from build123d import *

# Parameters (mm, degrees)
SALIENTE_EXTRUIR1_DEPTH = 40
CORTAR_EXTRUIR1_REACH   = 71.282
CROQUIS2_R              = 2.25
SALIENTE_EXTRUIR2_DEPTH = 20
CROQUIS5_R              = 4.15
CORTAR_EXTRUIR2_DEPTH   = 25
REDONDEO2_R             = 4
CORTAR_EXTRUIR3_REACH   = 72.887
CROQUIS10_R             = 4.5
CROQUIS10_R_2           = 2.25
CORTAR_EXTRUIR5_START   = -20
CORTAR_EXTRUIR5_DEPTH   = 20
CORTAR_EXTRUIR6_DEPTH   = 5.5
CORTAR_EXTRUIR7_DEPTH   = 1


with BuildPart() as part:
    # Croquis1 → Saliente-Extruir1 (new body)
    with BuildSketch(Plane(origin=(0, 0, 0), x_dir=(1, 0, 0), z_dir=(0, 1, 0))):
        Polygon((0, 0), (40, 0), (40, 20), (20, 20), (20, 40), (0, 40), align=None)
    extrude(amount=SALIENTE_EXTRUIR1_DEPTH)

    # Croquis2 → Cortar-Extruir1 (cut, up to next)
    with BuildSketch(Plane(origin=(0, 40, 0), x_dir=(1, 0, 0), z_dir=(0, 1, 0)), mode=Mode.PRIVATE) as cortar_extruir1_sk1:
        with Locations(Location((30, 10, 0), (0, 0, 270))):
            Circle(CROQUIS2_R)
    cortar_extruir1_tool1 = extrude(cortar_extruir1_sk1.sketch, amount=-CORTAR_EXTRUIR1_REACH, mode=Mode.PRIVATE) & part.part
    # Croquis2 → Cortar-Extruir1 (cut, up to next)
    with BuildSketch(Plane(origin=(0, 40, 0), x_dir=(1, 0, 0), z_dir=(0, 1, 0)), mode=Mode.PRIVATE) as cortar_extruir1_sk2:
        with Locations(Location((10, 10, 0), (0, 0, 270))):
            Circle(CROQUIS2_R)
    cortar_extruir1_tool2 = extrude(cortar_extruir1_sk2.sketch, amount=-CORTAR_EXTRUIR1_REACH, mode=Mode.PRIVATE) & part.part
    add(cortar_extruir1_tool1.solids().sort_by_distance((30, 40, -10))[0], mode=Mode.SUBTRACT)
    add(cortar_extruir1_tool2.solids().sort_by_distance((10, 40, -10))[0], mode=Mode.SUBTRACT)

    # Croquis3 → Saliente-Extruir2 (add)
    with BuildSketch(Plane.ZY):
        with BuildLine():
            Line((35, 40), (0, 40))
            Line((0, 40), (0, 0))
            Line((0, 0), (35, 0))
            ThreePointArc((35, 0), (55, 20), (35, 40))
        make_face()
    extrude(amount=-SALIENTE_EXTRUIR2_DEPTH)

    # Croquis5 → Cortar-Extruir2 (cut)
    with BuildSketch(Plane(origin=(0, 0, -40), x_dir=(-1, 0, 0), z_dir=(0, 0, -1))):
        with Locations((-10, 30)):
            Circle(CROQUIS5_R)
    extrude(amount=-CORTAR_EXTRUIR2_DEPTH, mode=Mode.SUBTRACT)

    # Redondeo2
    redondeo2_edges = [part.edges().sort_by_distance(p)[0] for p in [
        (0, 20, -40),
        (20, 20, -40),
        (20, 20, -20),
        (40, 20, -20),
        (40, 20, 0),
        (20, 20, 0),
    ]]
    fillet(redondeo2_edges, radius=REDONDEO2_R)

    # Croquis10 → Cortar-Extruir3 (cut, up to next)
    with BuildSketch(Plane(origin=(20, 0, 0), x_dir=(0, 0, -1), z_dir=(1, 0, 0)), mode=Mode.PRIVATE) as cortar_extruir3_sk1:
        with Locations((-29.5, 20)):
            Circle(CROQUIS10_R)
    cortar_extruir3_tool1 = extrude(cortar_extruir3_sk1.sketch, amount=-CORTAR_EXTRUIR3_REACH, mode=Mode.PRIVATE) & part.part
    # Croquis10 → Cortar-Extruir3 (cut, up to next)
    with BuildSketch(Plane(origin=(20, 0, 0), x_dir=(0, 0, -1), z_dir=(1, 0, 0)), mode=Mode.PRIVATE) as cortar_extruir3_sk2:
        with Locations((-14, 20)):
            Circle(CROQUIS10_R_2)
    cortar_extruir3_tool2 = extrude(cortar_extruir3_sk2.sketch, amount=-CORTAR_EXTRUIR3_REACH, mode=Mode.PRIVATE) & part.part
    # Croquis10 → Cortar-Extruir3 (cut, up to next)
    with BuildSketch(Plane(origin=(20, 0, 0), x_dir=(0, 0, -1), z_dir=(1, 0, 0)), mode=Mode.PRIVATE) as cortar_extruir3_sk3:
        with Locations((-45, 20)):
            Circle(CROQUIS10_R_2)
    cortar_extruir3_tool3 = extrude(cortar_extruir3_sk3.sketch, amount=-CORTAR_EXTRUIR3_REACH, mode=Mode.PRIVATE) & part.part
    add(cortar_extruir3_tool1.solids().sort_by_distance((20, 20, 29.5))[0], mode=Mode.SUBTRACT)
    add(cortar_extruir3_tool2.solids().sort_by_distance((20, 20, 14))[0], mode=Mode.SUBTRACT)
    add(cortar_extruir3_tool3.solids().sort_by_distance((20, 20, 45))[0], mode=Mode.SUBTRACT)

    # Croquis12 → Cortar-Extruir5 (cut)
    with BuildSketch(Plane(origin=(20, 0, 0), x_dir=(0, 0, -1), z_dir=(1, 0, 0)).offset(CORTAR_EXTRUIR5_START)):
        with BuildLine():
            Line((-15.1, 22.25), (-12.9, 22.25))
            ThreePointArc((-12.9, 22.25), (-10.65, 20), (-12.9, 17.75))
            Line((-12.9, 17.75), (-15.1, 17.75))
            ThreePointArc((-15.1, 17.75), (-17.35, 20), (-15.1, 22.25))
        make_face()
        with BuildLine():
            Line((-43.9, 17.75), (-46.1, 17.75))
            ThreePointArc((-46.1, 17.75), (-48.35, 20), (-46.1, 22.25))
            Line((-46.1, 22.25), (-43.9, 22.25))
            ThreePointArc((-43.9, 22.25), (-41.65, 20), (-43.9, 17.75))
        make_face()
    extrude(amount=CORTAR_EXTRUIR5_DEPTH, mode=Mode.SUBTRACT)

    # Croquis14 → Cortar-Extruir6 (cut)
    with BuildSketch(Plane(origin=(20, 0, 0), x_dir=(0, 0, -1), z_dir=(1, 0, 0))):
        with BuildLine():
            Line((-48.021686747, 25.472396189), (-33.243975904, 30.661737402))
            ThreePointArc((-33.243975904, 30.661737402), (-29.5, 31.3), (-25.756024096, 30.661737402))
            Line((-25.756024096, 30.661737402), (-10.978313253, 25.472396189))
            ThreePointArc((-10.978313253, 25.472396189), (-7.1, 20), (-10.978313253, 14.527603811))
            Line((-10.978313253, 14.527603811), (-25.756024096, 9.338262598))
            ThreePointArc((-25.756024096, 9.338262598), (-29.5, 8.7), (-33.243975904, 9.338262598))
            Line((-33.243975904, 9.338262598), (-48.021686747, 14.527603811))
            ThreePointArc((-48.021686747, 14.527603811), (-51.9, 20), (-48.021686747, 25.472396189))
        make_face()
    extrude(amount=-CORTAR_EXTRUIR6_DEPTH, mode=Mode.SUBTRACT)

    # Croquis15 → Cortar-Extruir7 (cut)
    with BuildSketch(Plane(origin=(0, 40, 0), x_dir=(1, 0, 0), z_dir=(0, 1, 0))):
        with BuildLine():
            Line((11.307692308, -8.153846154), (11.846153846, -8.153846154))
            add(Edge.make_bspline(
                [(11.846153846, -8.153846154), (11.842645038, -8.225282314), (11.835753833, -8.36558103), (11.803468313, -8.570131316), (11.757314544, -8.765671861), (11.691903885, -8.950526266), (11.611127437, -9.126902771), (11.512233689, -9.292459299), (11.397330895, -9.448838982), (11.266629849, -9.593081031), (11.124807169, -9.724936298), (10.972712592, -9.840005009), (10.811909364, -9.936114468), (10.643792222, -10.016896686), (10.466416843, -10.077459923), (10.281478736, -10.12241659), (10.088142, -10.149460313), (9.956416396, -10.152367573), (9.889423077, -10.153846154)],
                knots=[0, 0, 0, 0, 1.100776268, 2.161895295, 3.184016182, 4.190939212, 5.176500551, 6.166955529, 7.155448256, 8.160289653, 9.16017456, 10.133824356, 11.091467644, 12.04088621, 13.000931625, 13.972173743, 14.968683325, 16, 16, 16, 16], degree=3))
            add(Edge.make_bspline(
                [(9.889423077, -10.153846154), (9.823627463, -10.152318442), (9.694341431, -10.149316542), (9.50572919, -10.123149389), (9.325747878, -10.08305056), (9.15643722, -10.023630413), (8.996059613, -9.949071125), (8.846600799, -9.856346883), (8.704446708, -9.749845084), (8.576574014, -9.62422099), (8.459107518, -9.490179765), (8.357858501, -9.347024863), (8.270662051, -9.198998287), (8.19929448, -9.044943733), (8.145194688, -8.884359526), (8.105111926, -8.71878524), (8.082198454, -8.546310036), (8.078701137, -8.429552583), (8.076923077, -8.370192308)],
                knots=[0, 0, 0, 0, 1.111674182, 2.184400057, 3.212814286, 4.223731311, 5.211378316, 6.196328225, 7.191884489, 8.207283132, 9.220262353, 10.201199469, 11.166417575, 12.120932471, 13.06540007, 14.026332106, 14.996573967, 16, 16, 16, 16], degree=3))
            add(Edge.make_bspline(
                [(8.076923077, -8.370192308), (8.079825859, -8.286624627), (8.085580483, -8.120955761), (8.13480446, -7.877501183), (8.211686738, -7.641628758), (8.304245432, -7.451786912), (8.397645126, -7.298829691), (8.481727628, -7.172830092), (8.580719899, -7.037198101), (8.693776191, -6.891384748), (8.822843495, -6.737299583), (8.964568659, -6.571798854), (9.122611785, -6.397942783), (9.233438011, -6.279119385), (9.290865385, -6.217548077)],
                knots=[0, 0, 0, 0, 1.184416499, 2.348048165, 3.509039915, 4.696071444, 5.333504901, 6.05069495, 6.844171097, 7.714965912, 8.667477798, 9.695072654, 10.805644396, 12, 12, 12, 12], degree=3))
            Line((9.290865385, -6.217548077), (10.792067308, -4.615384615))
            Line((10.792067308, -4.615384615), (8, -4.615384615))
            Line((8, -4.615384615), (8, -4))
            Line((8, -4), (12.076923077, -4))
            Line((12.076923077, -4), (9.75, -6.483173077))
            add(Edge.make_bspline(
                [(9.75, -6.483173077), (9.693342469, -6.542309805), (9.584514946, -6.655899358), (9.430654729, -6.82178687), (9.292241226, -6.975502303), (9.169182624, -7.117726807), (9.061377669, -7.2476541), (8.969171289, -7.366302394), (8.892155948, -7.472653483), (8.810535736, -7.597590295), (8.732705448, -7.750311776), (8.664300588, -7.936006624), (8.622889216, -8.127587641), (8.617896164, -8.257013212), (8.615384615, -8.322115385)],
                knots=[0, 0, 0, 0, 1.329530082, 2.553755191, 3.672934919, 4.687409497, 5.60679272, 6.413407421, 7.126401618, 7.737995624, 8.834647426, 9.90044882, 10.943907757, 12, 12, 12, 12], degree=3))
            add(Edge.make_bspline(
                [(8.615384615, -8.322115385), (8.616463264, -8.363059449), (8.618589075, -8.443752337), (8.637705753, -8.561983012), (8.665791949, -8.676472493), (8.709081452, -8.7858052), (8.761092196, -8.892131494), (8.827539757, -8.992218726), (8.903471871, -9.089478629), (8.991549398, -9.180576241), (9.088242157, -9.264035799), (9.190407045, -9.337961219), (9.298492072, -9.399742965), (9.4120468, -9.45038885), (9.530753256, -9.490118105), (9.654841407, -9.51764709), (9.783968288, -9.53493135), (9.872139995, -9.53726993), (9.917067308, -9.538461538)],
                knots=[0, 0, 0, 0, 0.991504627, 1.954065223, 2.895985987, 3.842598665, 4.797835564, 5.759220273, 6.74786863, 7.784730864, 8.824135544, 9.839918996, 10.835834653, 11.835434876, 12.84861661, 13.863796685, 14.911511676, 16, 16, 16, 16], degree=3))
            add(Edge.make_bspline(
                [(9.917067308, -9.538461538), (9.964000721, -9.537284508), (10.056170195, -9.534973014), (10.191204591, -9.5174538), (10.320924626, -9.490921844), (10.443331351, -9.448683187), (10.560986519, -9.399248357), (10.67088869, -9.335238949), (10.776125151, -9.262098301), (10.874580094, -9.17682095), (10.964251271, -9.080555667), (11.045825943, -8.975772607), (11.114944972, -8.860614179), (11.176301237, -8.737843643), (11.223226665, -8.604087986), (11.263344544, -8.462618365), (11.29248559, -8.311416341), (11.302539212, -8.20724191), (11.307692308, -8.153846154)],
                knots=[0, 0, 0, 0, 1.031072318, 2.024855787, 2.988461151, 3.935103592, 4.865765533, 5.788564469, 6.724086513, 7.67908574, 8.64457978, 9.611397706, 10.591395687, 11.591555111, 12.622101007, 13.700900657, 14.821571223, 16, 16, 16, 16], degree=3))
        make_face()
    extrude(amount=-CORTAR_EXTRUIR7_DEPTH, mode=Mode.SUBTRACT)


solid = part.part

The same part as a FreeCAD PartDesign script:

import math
import FreeCAD as App
import Part
import Sketcher
Q = App.Units.Quantity


def edges_at(feature, points):
    """Names of the edges that pass closest to the given points."""
    edges = feature.Shape.Edges
    near = lambda p: min(range(len(edges)), key=lambda i: edges[i].distToShape(Part.Vertex(*p))[0])
    return sorted({f"Edge{near(p) + 1}" for p in points})

doc = App.newDocument("Part")
body = doc.addObject("PartDesign::Body", "Body")

sketch1 = doc.addObject("Sketcher::SketchObject", "Sketch")
body.addObject(sketch1)
sketch1.AttachmentSupport = (doc.XZ_Plane, [""])
sketch1.MapMode = "FlatFace"
sketch1.addGeometry([
    Part.LineSegment(App.Vector(0, 0, 0), App.Vector(40, 0, 0)),
    Part.LineSegment(App.Vector(40, 0, 0), App.Vector(40, -20, 0)),
    Part.LineSegment(App.Vector(40, -20, 0), App.Vector(20, -20, 0)),
    Part.LineSegment(App.Vector(20, -20, 0), App.Vector(20, -40, 0)),
    Part.LineSegment(App.Vector(20, -40, 0), App.Vector(0, -40, 0)),
    Part.LineSegment(App.Vector(0, -40, 0), App.Vector(0, 0, 0)),
], False)
sketch1.addConstraint([
    Sketcher.Constraint("Coincident", 0, 2, 1, 1),
    Sketcher.Constraint("Coincident", 1, 2, 2, 1),
    Sketcher.Constraint("Coincident", 2, 2, 3, 1),
    Sketcher.Constraint("Coincident", 3, 2, 4, 1),
    Sketcher.Constraint("Coincident", 4, 2, 5, 1),
    Sketcher.Constraint("Coincident", 5, 2, 0, 1),
    Sketcher.Constraint("Horizontal", 0),
    Sketcher.Constraint("Vertical", 1),
    Sketcher.Constraint("Horizontal", 2),
    Sketcher.Constraint("Vertical", 3),
    Sketcher.Constraint("Horizontal", 4),
    Sketcher.Constraint("Vertical", 5),
    Sketcher.Constraint("Coincident", 5, 2, -1, 1),
    Sketcher.Constraint("Equal", 2, 4),
    Sketcher.Constraint("Equal", 4, 1),
    Sketcher.Constraint("Equal", 1, 3),
    Sketcher.Constraint("DistanceX", 0, 1, 0, 2, Q("40 mm")),
])
pad1 = doc.addObject("PartDesign::Pad", "Pad")
body.addObject(pad1)
pad1.Profile = sketch1
pad1.Length = 40
pad1.Reversed = True

sketch2 = doc.addObject("Sketcher::SketchObject", "Sketch001")
body.addObject(sketch2)
sketch2.AttachmentSupport = (doc.XZ_Plane, [""])
sketch2.MapMode = "FlatFace"
sketch2.AttachmentOffset = App.Placement(App.Vector(0, 0, -40), App.Rotation())
sketch2.addGeometry(Part.Circle(App.Vector(30, -10, 0), App.Vector(0, 0, 1), 2.25), False)
sketch2.addConstraint([
    Sketcher.Constraint("Diameter", 0, Q("4.5 mm")),
    Sketcher.Constraint("DistanceX", -1, 1, 0, 3, Q("30 mm")),
    Sketcher.Constraint("DistanceY", 0, 3, -1, 1, Q("10 mm")),
])
pocket1 = doc.addObject("PartDesign::Pocket", "Pocket")
body.addObject(pocket1)
pocket1.Profile = sketch2
pocket1.Type = "UpToFirst"
pocket1.Reversed = True

sketch3 = doc.addObject("Sketcher::SketchObject", "Sketch002")
body.addObject(sketch3)
sketch3.AttachmentSupport = (doc.XZ_Plane, [""])
sketch3.MapMode = "FlatFace"
sketch3.AttachmentOffset = App.Placement(App.Vector(0, 0, -40), App.Rotation())
sketch3.addGeometry(Part.Circle(App.Vector(10, -10, 0), App.Vector(0, 0, 1), 2.25), False)
sketch3.addConstraint([
    Sketcher.Constraint("Diameter", 0, Q("4.5 mm")),
    Sketcher.Constraint("DistanceX", -1, 1, 0, 3, Q("10 mm")),
    Sketcher.Constraint("DistanceY", 0, 3, -1, 1, Q("10 mm")),
])
pocket2 = doc.addObject("PartDesign::Pocket", "Pocket001")
body.addObject(pocket2)
pocket2.Profile = sketch3
pocket2.Type = "UpToFirst"
pocket2.Reversed = True

sketch4 = doc.addObject("Sketcher::SketchObject", "Sketch003")
body.addObject(sketch4)
sketch4.AttachmentSupport = (doc.YZ_Plane, [""])
sketch4.MapMode = "FlatFace"
sketch4.addGeometry([
    Part.LineSegment(App.Vector(40, 35, 0), App.Vector(40, 0, 0)),
    Part.LineSegment(App.Vector(40, 0, 0), App.Vector(0, 0, 0)),
    Part.LineSegment(App.Vector(0, 0, 0), App.Vector(0, 35, 0)),
    Part.ArcOfCircle(Part.Circle(App.Vector(20, 35, 0), App.Vector(0, 0, 1), 20), math.radians(0), math.radians(180)),
], False)
sketch4.addConstraint([
    Sketcher.Constraint("Coincident", 0, 2, 1, 1),
    Sketcher.Constraint("Coincident", 1, 2, 2, 1),
    Sketcher.Constraint("Tangent", 2, 2, 3, 2),
    Sketcher.Constraint("Tangent", 3, 1, 0, 1),
    Sketcher.Constraint("Vertical", 0),
    Sketcher.Constraint("Horizontal", 1),
    Sketcher.Constraint("Vertical", 2),
    Sketcher.Constraint("Coincident", 1, 2, -1, 1),
    Sketcher.Constraint("Radius", 3, Q("20 mm")),
    Sketcher.Constraint("DistanceY", 0, 2, 0, 1, Q("35 mm")),
])
pad2 = doc.addObject("PartDesign::Pad", "Pad001")
body.addObject(pad2)
pad2.Profile = sketch4
pad2.Length = 20

sketch5 = doc.addObject("Sketcher::SketchObject", "Sketch004")
body.addObject(sketch5)
sketch5.AttachmentSupport = (doc.XY_Plane, [""])
sketch5.MapMode = "FlatFace"
sketch5.AttachmentOffset = App.Placement(App.Vector(0, 0, -40), App.Rotation())
sketch5.addGeometry(Part.Circle(App.Vector(10, 30, 0), App.Vector(0, 0, 1), 4.15), False)
sketch5.addConstraint([
    Sketcher.Constraint("Diameter", 0, Q("8.3 mm")),
    Sketcher.Constraint("DistanceX", -1, 1, 0, 3, Q("10 mm")),
    Sketcher.Constraint("DistanceY", -1, 1, 0, 3, Q("30 mm")),
])
pocket3 = doc.addObject("PartDesign::Pocket", "Pocket002")
body.addObject(pocket3)
pocket3.Profile = sketch5
pocket3.Length = 25
pocket3.Reversed = True
doc.recompute()

fillet = doc.addObject("PartDesign::Fillet", "Fillet")
body.addObject(fillet)
fillet.Base = (pocket3, edges_at(pocket3, [
    (0, 20, -40),
    (20, 20, -40),
    (20, 20, -20),
    (40, 20, -20),
    (40, 20, 0),
    (20, 20, 0),
]))
fillet.Radius = 4

sketch6 = doc.addObject("Sketcher::SketchObject", "Sketch005")
body.addObject(sketch6)
sketch6.AttachmentSupport = (doc.YZ_Plane, [""])
sketch6.MapMode = "FlatFace"
sketch6.AttachmentOffset = App.Placement(App.Vector(0, 0, 20), App.Rotation())
sketch6.addGeometry(Part.Circle(App.Vector(20, 29.5, 0), App.Vector(0, 0, 1), 4.5), False)
sketch6.addConstraint([
    Sketcher.Constraint("Diameter", 0, Q("9 mm")),
    Sketcher.Constraint("DistanceX", -1, 1, 0, 3, Q("20 mm")),
    Sketcher.Constraint("DistanceY", -1, 1, 0, 3, Q("29.5 mm")),
])
pocket4 = doc.addObject("PartDesign::Pocket", "Pocket003")
body.addObject(pocket4)
pocket4.Profile = sketch6
pocket4.Type = "UpToFirst"

sketch7 = doc.addObject("Sketcher::SketchObject", "Sketch006")
body.addObject(sketch7)
sketch7.AttachmentSupport = (doc.YZ_Plane, [""])
sketch7.MapMode = "FlatFace"
sketch7.AttachmentOffset = App.Placement(App.Vector(0, 0, 20), App.Rotation())
sketch7.addGeometry(Part.Circle(App.Vector(20, 14, 0), App.Vector(0, 0, 1), 2.25), False)
sketch7.addConstraint([
    Sketcher.Constraint("Diameter", 0, Q("4.5 mm")),
    Sketcher.Constraint("DistanceX", -1, 1, 0, 3, Q("20 mm")),
    Sketcher.Constraint("DistanceY", -1, 1, 0, 3, Q("14 mm")),
])
pocket5 = doc.addObject("PartDesign::Pocket", "Pocket004")
body.addObject(pocket5)
pocket5.Profile = sketch7
pocket5.Type = "UpToFirst"

sketch8 = doc.addObject("Sketcher::SketchObject", "Sketch007")
body.addObject(sketch8)
sketch8.AttachmentSupport = (doc.YZ_Plane, [""])
sketch8.MapMode = "FlatFace"
sketch8.AttachmentOffset = App.Placement(App.Vector(0, 0, 20), App.Rotation())
sketch8.addGeometry(Part.Circle(App.Vector(20, 45, 0), App.Vector(0, 0, 1), 2.25), False)
sketch8.addConstraint([
    Sketcher.Constraint("Diameter", 0, Q("4.5 mm")),
    Sketcher.Constraint("DistanceX", -1, 1, 0, 3, Q("20 mm")),
    Sketcher.Constraint("DistanceY", -1, 1, 0, 3, Q("45 mm")),
])
pocket6 = doc.addObject("PartDesign::Pocket", "Pocket005")
body.addObject(pocket6)
pocket6.Profile = sketch8
pocket6.Type = "UpToFirst"

sketch9 = doc.addObject("Sketcher::SketchObject", "Sketch008")
body.addObject(sketch9)
sketch9.AttachmentSupport = (doc.YZ_Plane, [""])
sketch9.MapMode = "FlatFace"
sketch9.addGeometry([
    Part.LineSegment(App.Vector(22.25, 12.9, 0), App.Vector(22.25, 15.1, 0)),
    Part.ArcOfCircle(Part.Circle(App.Vector(20, 15.1, 0), App.Vector(0, 0, 1), 2.25), math.radians(0), math.radians(180)),
    Part.LineSegment(App.Vector(17.75, 15.1, 0), App.Vector(17.75, 12.9, 0)),
    Part.ArcOfCircle(Part.Circle(App.Vector(20, 12.9, 0), App.Vector(0, 0, 1), 2.25), math.radians(180), math.radians(360)),
    Part.LineSegment(App.Vector(17.75, 46.1, 0), App.Vector(17.75, 43.9, 0)),
    Part.ArcOfCircle(Part.Circle(App.Vector(20, 43.9, 0), App.Vector(0, 0, 1), 2.25), math.radians(180), math.radians(360)),
    Part.LineSegment(App.Vector(22.25, 43.9, 0), App.Vector(22.25, 46.1, 0)),
    Part.ArcOfCircle(Part.Circle(App.Vector(20, 46.1, 0), App.Vector(0, 0, 1), 2.25), math.radians(0), math.radians(180)),
], False)
sketch9.addConstraint([
    Sketcher.Constraint("Tangent", 0, 2, 1, 1),
    Sketcher.Constraint("Tangent", 1, 2, 2, 1),
    Sketcher.Constraint("Tangent", 2, 2, 3, 1),
    Sketcher.Constraint("Tangent", 3, 2, 0, 1),
    Sketcher.Constraint("Tangent", 4, 2, 5, 1),
    Sketcher.Constraint("Tangent", 5, 2, 6, 1),
    Sketcher.Constraint("Tangent", 6, 2, 7, 1),
    Sketcher.Constraint("Tangent", 7, 2, 4, 1),
    Sketcher.Constraint("Vertical", 0),
    Sketcher.Constraint("Vertical", 2),
    Sketcher.Constraint("Vertical", 4),
    Sketcher.Constraint("Vertical", 6),
    Sketcher.Constraint("Equal", 3, 5),
    Sketcher.Constraint("Vertical", 3, 3, 5, 3),
    Sketcher.Constraint("Equal", 2, 4),
    Sketcher.Constraint("Radius", 1, Q("2.25 mm")),
    Sketcher.Constraint("DistanceY", 0, 1, 0, 2, Q("2.2 mm")),
    Sketcher.Constraint("DistanceX", -1, 1, 1, 3, Q("20 mm")),
    Sketcher.Constraint("DistanceY", 3, 3, 5, 3, Q("31 mm")),
    Sketcher.Constraint("DistanceY", -1, 1, 1, 3, Q("15.1 mm")),
])
pocket7 = doc.addObject("PartDesign::Pocket", "Pocket006")
body.addObject(pocket7)
pocket7.Profile = sketch9
pocket7.Length = 20
pocket7.Reversed = True

sketch10 = doc.addObject("Sketcher::SketchObject", "Sketch009")
body.addObject(sketch10)
sketch10.AttachmentSupport = (doc.YZ_Plane, [""])
sketch10.MapMode = "FlatFace"
sketch10.AttachmentOffset = App.Placement(App.Vector(0, 0, 20), App.Rotation())
sketch10.addGeometry([
    Part.LineSegment(App.Vector(30.661737, 33.243976, 0), App.Vector(25.472396, 48.021687, 0)),
    Part.ArcOfCircle(Part.Circle(App.Vector(20, 46.1, 0), App.Vector(0, 0, 1), 5.8), math.radians(19.349236), math.radians(160.650764)),
    Part.LineSegment(App.Vector(14.527604, 48.021687, 0), App.Vector(9.338263, 33.243976, 0)),
    Part.ArcOfCircle(Part.Circle(App.Vector(20, 29.5, 0), App.Vector(0, 0, 1), 11.3), math.radians(160.650764), math.radians(199.349236)),
    Part.LineSegment(App.Vector(9.338263, 25.756024, 0), App.Vector(14.527604, 10.978313, 0)),
    Part.ArcOfCircle(Part.Circle(App.Vector(20, 12.9, 0), App.Vector(0, 0, 1), 5.8), math.radians(-160.650764), math.radians(-19.349236)),
    Part.LineSegment(App.Vector(25.472396, 10.978313, 0), App.Vector(30.661737, 25.756024, 0)),
    Part.ArcOfCircle(Part.Circle(App.Vector(20, 29.5, 0), App.Vector(0, 0, 1), 11.3), math.radians(-19.349236), math.radians(19.349236)),
], False)
sketch10.addConstraint([
    Sketcher.Constraint("Tangent", 0, 2, 1, 1),
    Sketcher.Constraint("Tangent", 1, 2, 2, 1),
    Sketcher.Constraint("Tangent", 2, 2, 3, 1),
    Sketcher.Constraint("Tangent", 3, 2, 4, 1),
    Sketcher.Constraint("Tangent", 4, 2, 5, 1),
    Sketcher.Constraint("Tangent", 5, 2, 6, 1),
    Sketcher.Constraint("Tangent", 6, 2, 7, 1),
    Sketcher.Constraint("Tangent", 7, 2, 0, 1),
    Sketcher.Constraint("Coincident", 7, 3, 3, 3),
    Sketcher.Constraint("Equal", 1, 5),
    Sketcher.Constraint("Equal", 3, 7),
    Sketcher.Constraint("Parallel", 0, 4),
    Sketcher.Constraint("Parallel", 2, 6),
    Sketcher.Constraint("Horizontal", 0, 2, 1, 2),
    Sketcher.Constraint("Radius", 1, Q("5.8 mm")),
    Sketcher.Constraint("Radius", 3, Q("11.3 mm")),
    Sketcher.Constraint("DistanceX", -1, 1, 1, 3, Q("20 mm")),
    Sketcher.Constraint("DistanceY", -1, 1, 1, 3, Q("46.1 mm")),
    Sketcher.Constraint("DistanceY", -1, 1, 3, 3, Q("29.5 mm")),
])
pocket8 = doc.addObject("PartDesign::Pocket", "Pocket007")
body.addObject(pocket8)
pocket8.Profile = sketch10
pocket8.Length = 5.5

sketch11 = doc.addObject("Sketcher::SketchObject", "Sketch010")
body.addObject(sketch11)
sketch11.AttachmentSupport = (doc.XZ_Plane, [""])
sketch11.MapMode = "FlatFace"
sketch11.AttachmentOffset = App.Placement(App.Vector(0, 0, -40), App.Rotation())
sketch11.addGeometry([
    Part.LineSegment(App.Vector(11.846154, 8.153846, 0), App.Vector(11.307692, 8.153846, 0)),
    Part.BSplineCurve([App.Vector(9.917067, 9.538462, 0), App.Vector(9.964001, 9.537285, 0), App.Vector(10.05617, 9.534973, 0), App.Vector(10.191205, 9.517454, 0), App.Vector(10.320925, 9.490922, 0), App.Vector(10.443331, 9.448683, 0), App.Vector(10.560987, 9.399248, 0), App.Vector(10.670889, 9.335239, 0), App.Vector(10.776125, 9.262098, 0), App.Vector(10.87458, 9.176821, 0), App.Vector(10.964251, 9.080556, 0), App.Vector(11.045826, 8.975773, 0), App.Vector(11.114945, 8.860614, 0), App.Vector(11.176301, 8.737844, 0), App.Vector(11.223227, 8.604088, 0), App.Vector(11.263345, 8.462618, 0), App.Vector(11.292486, 8.311416, 0), App.Vector(11.302539, 8.207242, 0), App.Vector(11.307692, 8.153846, 0)], [4, 1, 1, 1, 1, 1, 1, 1, 1, 1, 1, 1, 1, 1, 1, 1, 4], [0, 1.031072318, 2.024855787, 2.988461151, 3.935103592, 4.865765533, 5.788564469, 6.724086513, 7.67908574, 8.64457978, 9.611397706, 10.591395687, 11.591555111, 12.622101007, 13.700900657, 14.821571223, 16], False, 3, [1, 1, 1, 1, 1, 1, 1, 1, 1, 1, 1, 1, 1, 1, 1, 1, 1, 1, 1], False),
    Part.BSplineCurve([App.Vector(8.615385, 8.322115, 0), App.Vector(8.616463, 8.363059, 0), App.Vector(8.618589, 8.443752, 0), App.Vector(8.637706, 8.561983, 0), App.Vector(8.665792, 8.676472, 0), App.Vector(8.709081, 8.785805, 0), App.Vector(8.761092, 8.892131, 0), App.Vector(8.82754, 8.992219, 0), App.Vector(8.903472, 9.089479, 0), App.Vector(8.991549, 9.180576, 0), App.Vector(9.088242, 9.264036, 0), App.Vector(9.190407, 9.337961, 0), App.Vector(9.298492, 9.399743, 0), App.Vector(9.412047, 9.450389, 0), App.Vector(9.530753, 9.490118, 0), App.Vector(9.654841, 9.517647, 0), App.Vector(9.783968, 9.534931, 0), App.Vector(9.87214, 9.53727, 0), App.Vector(9.917067, 9.538462, 0)], [4, 1, 1, 1, 1, 1, 1, 1, 1, 1, 1, 1, 1, 1, 1, 1, 4], [0, 0.991504627, 1.954065223, 2.895985987, 3.842598665, 4.797835564, 5.759220273, 6.74786863, 7.784730864, 8.824135544, 9.839918996, 10.835834653, 11.835434876, 12.84861661, 13.863796685, 14.911511676, 16], False, 3, [1, 1, 1, 1, 1, 1, 1, 1, 1, 1, 1, 1, 1, 1, 1, 1, 1, 1, 1], False),
    Part.BSplineCurve([App.Vector(9.75, 6.483173, 0), App.Vector(9.693342, 6.54231, 0), App.Vector(9.584515, 6.655899, 0), App.Vector(9.430655, 6.821787, 0), App.Vector(9.292241, 6.975502, 0), App.Vector(9.169183, 7.117727, 0), App.Vector(9.061378, 7.247654, 0), App.Vector(8.969171, 7.366302, 0), App.Vector(8.892156, 7.472653, 0), App.Vector(8.810536, 7.59759, 0), App.Vector(8.732705, 7.750312, 0), App.Vector(8.664301, 7.936007, 0), App.Vector(8.622889, 8.127588, 0), App.Vector(8.617896, 8.257013, 0), App.Vector(8.615385, 8.322115, 0)], [4, 1, 1, 1, 1, 1, 1, 1, 1, 1, 1, 1, 4], [0, 1.329530082, 2.553755191, 3.672934919, 4.687409497, 5.60679272, 6.413407421, 7.126401618, 7.737995624, 8.834647426, 9.90044882, 10.943907757, 12], False, 3, [1, 1, 1, 1, 1, 1, 1, 1, 1, 1, 1, 1, 1, 1, 1], False),
    Part.LineSegment(App.Vector(9.75, 6.483173, 0), App.Vector(12.076923, 4, 0)),
    Part.LineSegment(App.Vector(12.076923, 4, 0), App.Vector(8, 4, 0)),
    Part.LineSegment(App.Vector(8, 4, 0), App.Vector(8, 4.615385, 0)),
    Part.LineSegment(App.Vector(8, 4.615385, 0), App.Vector(10.792067, 4.615385, 0)),
    Part.LineSegment(App.Vector(10.792067, 4.615385, 0), App.Vector(9.290865, 6.217548, 0)),
    Part.BSplineCurve([App.Vector(8.076923, 8.370192, 0), App.Vector(8.079826, 8.286625, 0), App.Vector(8.08558, 8.120956, 0), App.Vector(8.134804, 7.877501, 0), App.Vector(8.211687, 7.641629, 0), App.Vector(8.304245, 7.451787, 0), App.Vector(8.397645, 7.29883, 0), App.Vector(8.481728, 7.17283, 0), App.Vector(8.58072, 7.037198, 0), App.Vector(8.693776, 6.891385, 0), App.Vector(8.822843, 6.7373, 0), App.Vector(8.964569, 6.571799, 0), App.Vector(9.122612, 6.397943, 0), App.Vector(9.233438, 6.279119, 0), App.Vector(9.290865, 6.217548, 0)], [4, 1, 1, 1, 1, 1, 1, 1, 1, 1, 1, 1, 4], [0, 1.184416499, 2.348048165, 3.509039915, 4.696071444, 5.333504901, 6.05069495, 6.844171097, 7.714965912, 8.667477798, 9.695072654, 10.805644396, 12], False, 3, [1, 1, 1, 1, 1, 1, 1, 1, 1, 1, 1, 1, 1, 1, 1], False),
    Part.BSplineCurve([App.Vector(9.889423, 10.153846, 0), App.Vector(9.823627, 10.152318, 0), App.Vector(9.694341, 10.149317, 0), App.Vector(9.505729, 10.123149, 0), App.Vector(9.325748, 10.083051, 0), App.Vector(9.156437, 10.02363, 0), App.Vector(8.99606, 9.949071, 0), App.Vector(8.846601, 9.856347, 0), App.Vector(8.704447, 9.749845, 0), App.Vector(8.576574, 9.624221, 0), App.Vector(8.459108, 9.49018, 0), App.Vector(8.357859, 9.347025, 0), App.Vector(8.270662, 9.198998, 0), App.Vector(8.199294, 9.044944, 0), App.Vector(8.145195, 8.88436, 0), App.Vector(8.105112, 8.718785, 0), App.Vector(8.082198, 8.54631, 0), App.Vector(8.078701, 8.429553, 0), App.Vector(8.076923, 8.370192, 0)], [4, 1, 1, 1, 1, 1, 1, 1, 1, 1, 1, 1, 1, 1, 1, 1, 4], [0, 1.111674182, 2.184400057, 3.212814286, 4.223731311, 5.211378316, 6.196328225, 7.191884489, 8.207283132, 9.220262353, 10.201199469, 11.166417575, 12.120932471, 13.06540007, 14.026332106, 14.996573967, 16], False, 3, [1, 1, 1, 1, 1, 1, 1, 1, 1, 1, 1, 1, 1, 1, 1, 1, 1, 1, 1], False),
    Part.BSplineCurve([App.Vector(11.846154, 8.153846, 0), App.Vector(11.842645, 8.225282, 0), App.Vector(11.835754, 8.365581, 0), App.Vector(11.803468, 8.570131, 0), App.Vector(11.757315, 8.765672, 0), App.Vector(11.691904, 8.950526, 0), App.Vector(11.611127, 9.126903, 0), App.Vector(11.512234, 9.292459, 0), App.Vector(11.397331, 9.448839, 0), App.Vector(11.26663, 9.593081, 0), App.Vector(11.124807, 9.724936, 0), App.Vector(10.972713, 9.840005, 0), App.Vector(10.811909, 9.936114, 0), App.Vector(10.643792, 10.016897, 0), App.Vector(10.466417, 10.07746, 0), App.Vector(10.281479, 10.122417, 0), App.Vector(10.088142, 10.14946, 0), App.Vector(9.956416, 10.152368, 0), App.Vector(9.889423, 10.153846, 0)], [4, 1, 1, 1, 1, 1, 1, 1, 1, 1, 1, 1, 1, 1, 1, 1, 4], [0, 1.100776268, 2.161895295, 3.184016182, 4.190939212, 5.176500551, 6.166955529, 7.155448256, 8.160289653, 9.16017456, 10.133824356, 11.091467644, 12.04088621, 13.000931625, 13.972173743, 14.968683325, 16], False, 3, [1, 1, 1, 1, 1, 1, 1, 1, 1, 1, 1, 1, 1, 1, 1, 1, 1, 1, 1], False),
], False)
sketch11.addConstraint([
    Sketcher.Constraint("Block", 1),
    Sketcher.Constraint("Block", 2),
    Sketcher.Constraint("Block", 3),
    Sketcher.Constraint("Block", 9),
    Sketcher.Constraint("Block", 10),
    Sketcher.Constraint("Block", 11),
    Sketcher.Constraint("Coincident", 0, 2, 1, 2),
    Sketcher.Constraint("Coincident", 3, 1, 4, 1),
    Sketcher.Constraint("Coincident", 4, 2, 5, 1),
    Sketcher.Constraint("Coincident", 5, 2, 6, 1),
    Sketcher.Constraint("Coincident", 6, 2, 7, 1),
    Sketcher.Constraint("Coincident", 7, 2, 8, 1),
    Sketcher.Constraint("Coincident", 8, 2, 9, 2),
    Sketcher.Constraint("Coincident", 11, 1, 0, 1),
    Sketcher.Constraint("Horizontal", 5),
    Sketcher.Constraint("Vertical", 6),
    Sketcher.Constraint("Horizontal", 7),
    Sketcher.Constraint("DistanceY", -1, 1, 4, 2, Q("4 mm")),
    Sketcher.Constraint("DistanceX", -1, 1, 5, 2, Q("8 mm")),
    Sketcher.Constraint("DistanceX", 8, 2, 7, 2, Q("1.501202 mm")),
    Sketcher.Constraint("Distance", 8, Q("2.195572 mm")),
    Sketcher.Constraint("DistanceX", 5, 2, 5, 1, Q("4.076923 mm")),
])
pocket9 = doc.addObject("PartDesign::Pocket", "Pocket008")
body.addObject(pocket9)
pocket9.Profile = sketch11
pocket9.Length = 1
pocket9.Reversed = True

doc.recompute()
